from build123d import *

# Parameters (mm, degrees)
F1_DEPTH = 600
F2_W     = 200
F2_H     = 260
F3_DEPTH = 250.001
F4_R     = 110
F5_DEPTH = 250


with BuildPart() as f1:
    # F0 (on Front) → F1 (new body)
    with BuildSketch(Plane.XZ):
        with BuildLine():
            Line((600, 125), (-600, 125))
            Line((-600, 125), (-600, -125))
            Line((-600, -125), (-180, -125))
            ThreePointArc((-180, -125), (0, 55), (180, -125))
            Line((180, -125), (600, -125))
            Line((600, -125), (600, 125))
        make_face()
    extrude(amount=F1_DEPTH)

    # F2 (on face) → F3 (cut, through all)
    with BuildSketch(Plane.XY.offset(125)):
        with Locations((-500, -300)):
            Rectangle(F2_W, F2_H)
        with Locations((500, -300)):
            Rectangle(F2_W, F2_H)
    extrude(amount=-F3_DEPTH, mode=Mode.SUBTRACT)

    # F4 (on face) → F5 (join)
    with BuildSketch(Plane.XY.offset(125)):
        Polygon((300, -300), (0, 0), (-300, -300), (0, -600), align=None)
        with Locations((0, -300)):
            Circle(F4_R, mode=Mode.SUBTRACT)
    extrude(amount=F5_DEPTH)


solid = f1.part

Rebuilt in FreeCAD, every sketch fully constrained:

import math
import FreeCAD as App
import Part
import Sketcher

V = App.Vector
Q = App.Units.Quantity

doc = App.newDocument("Part")
body = doc.addObject("PartDesign::Body", "Body")

sketch1 = body.newObject("Sketcher::SketchObject", "Sketch")
sketch1.AttachmentSupport = (doc.getObject("XZ_Plane"), [""])
sketch1.MapMode = "FlatFace"
sketch1.addGeometry([
    Part.LineSegment(V(600, 125, 0), V(-600, 125, 0)),
    Part.LineSegment(V(-600, 125, 0), V(-600, -125, 0)),
    Part.LineSegment(V(-600, -125, 0), V(-180, -125, 0)),
    Part.ArcOfCircle(Part.Circle(V(0, -125, 0), V(0, 0, 1), 180), math.radians(0), math.radians(180)),
    Part.LineSegment(V(180, -125, 0), V(600, -125, 0)),
    Part.LineSegment(V(600, -125, 0), V(600, 125, 0)),
], False)
sketch1.addConstraint([
    Sketcher.Constraint("Coincident", 0, 2, 1, 1),
    Sketcher.Constraint("Coincident", 1, 2, 2, 1),
    Sketcher.Constraint("Coincident", 2, 2, 3, 2),
    Sketcher.Constraint("Coincident", 3, 1, 4, 1),
    Sketcher.Constraint("Coincident", 4, 2, 5, 1),
    Sketcher.Constraint("Coincident", 5, 2, 0, 1),
    Sketcher.Constraint("Horizontal", 0),
    Sketcher.Constraint("Vertical", 1),
    Sketcher.Constraint("Horizontal", 2),
    Sketcher.Constraint("Horizontal", 4),
    Sketcher.Constraint("Vertical", 5),
    Sketcher.Constraint("Symmetric", 0, 2, 4, 2, -1, 1),
    Sketcher.Constraint("Symmetric", 2, 2, 3, 1, -2),
    Sketcher.Constraint("Horizontal", 3, 3, 1, 2),
    Sketcher.Constraint("Radius", 3, Q("180 mm")),
    Sketcher.Constraint("DistanceX", 0, 2, 0, 1, Q("1200 mm")),
    Sketcher.Constraint("DistanceY", 1, 2, 1, 1, Q("250 mm")),
])
pad1 = body.newObject("PartDesign::Pad", "Pad")
pad1.Profile = sketch1
pad1.Length = 600

sketch2 = body.newObject("Sketcher::SketchObject", "Sketch001")
sketch2.AttachmentSupport = (doc.getObject("XY_Plane"), [""])
sketch2.MapMode = "FlatFace"
sketch2.AttachmentOffset = App.Placement(V(0, 0, 125), App.Rotation())
sketch2.addGeometry([
    Part.LineSegment(V(-600, -170, 0), V(-600, -430, 0)),
    Part.LineSegment(V(-600, -430, 0), V(-400, -430, 0)),
    Part.LineSegment(V(-400, -430, 0), V(-400, -170, 0)),
    Part.LineSegment(V(-400, -170, 0), V(-600, -170, 0)),
    Part.LineSegment(V(400, -170, 0), V(400, -430, 0)),
    Part.LineSegment(V(400, -430, 0), V(600, -430, 0)),
    Part.LineSegment(V(600, -430, 0), V(600, -170, 0)),
    Part.LineSegment(V(600, -170, 0), V(400, -170, 0)),
], False)
sketch2.addConstraint([
    Sketcher.Constraint("Coincident", 0, 2, 1, 1),
    Sketcher.Constraint("Coincident", 1, 2, 2, 1),
    Sketcher.Constraint("Coincident", 2, 2, 3, 1),
    Sketcher.Constraint("Coincident", 3, 2, 0, 1),
    Sketcher.Constraint("Coincident", 4, 2, 5, 1),
    Sketcher.Constraint("Coincident", 5, 2, 6, 1),
    Sketcher.Constraint("Coincident", 6, 2, 7, 1),
    Sketcher.Constraint("Coincident", 7, 2, 4, 1),
    Sketcher.Constraint("Vertical", 0),
    Sketcher.Constraint("Horizontal", 1),
    Sketcher.Constraint("Vertical", 2),
    Sketcher.Constraint("Horizontal", 3),
    Sketcher.Constraint("Vertical", 4),
    Sketcher.Constraint("Horizontal", 5),
    Sketcher.Constraint("Vertical", 6),
    Sketcher.Constraint("Horizontal", 7),
    Sketcher.Constraint("Symmetric", 1, 2, 4, 2, -2),
    Sketcher.Constraint("Symmetric", 3, 2, 6, 2, -2),
    Sketcher.Constraint("DistanceX", 1, 1, 1, 2, Q("200 mm")),
    Sketcher.Constraint("DistanceY", 0, 2, 0, 1, Q("260 mm")),
    Sketcher.Constraint("DistanceX", 0, 2, -1, 1, Q("600 mm")),
    Sketcher.Constraint("DistanceY", 0, 2, -1, 1, Q("430 mm")),
])
pocket1 = body.newObject("PartDesign::Pocket", "Pocket")
pocket1.Profile = sketch2
pocket1.Type = "ThroughAll"

sketch3 = body.newObject("Sketcher::SketchObject", "Sketch002")
sketch3.AttachmentSupport = (doc.getObject("XY_Plane"), [""])
sketch3.MapMode = "FlatFace"
sketch3.AttachmentOffset = App.Placement(V(0, 0, 125), App.Rotation())
sketch3.addGeometry([
    Part.LineSegment(V(300, -300, 0), V(0, 0, 0)),
    Part.LineSegment(V(0, 0, 0), V(-300, -300, 0)),
    Part.LineSegment(V(-300, -300, 0), V(0, -600, 0)),
    Part.LineSegment(V(0, -600, 0), V(300, -300, 0)),
    Part.Circle(V(0, -300, 0), V(0, 0, 1), 110),
], False)
sketch3.addConstraint([
    Sketcher.Constraint("Coincident", 0, 2, 1, 1),
    Sketcher.Constraint("Coincident", 1, 2, 2, 1),
    Sketcher.Constraint("Coincident", 2, 2, 3, 1),
    Sketcher.Constraint("Coincident", 3, 2, 0, 1),
    Sketcher.Constraint("Coincident", 0, 2, -1, 1),
    Sketcher.Constraint("Symmetric", 1, 2, 3, 2, -2),
    Sketcher.Constraint("PointOnObject", 4, 3, -2),
    Sketcher.Constraint("PointOnObject", 2, 2, -2),
    Sketcher.Constraint("Perpendicular", 0, 1),
    Sketcher.Constraint("Perpendicular", 1, 2),
    Sketcher.Constraint("Horizontal", 4, 3, 1, 2),
    Sketcher.Constraint("Diameter", 4, Q("220 mm")),
    Sketcher.Constraint("DistanceY", 4, 3, -1, 1, Q("300 mm")),
])
pad2 = body.newObject("PartDesign::Pad", "Pad001")
pad2.Profile = sketch3
pad2.Length = 250

doc.recompute()
